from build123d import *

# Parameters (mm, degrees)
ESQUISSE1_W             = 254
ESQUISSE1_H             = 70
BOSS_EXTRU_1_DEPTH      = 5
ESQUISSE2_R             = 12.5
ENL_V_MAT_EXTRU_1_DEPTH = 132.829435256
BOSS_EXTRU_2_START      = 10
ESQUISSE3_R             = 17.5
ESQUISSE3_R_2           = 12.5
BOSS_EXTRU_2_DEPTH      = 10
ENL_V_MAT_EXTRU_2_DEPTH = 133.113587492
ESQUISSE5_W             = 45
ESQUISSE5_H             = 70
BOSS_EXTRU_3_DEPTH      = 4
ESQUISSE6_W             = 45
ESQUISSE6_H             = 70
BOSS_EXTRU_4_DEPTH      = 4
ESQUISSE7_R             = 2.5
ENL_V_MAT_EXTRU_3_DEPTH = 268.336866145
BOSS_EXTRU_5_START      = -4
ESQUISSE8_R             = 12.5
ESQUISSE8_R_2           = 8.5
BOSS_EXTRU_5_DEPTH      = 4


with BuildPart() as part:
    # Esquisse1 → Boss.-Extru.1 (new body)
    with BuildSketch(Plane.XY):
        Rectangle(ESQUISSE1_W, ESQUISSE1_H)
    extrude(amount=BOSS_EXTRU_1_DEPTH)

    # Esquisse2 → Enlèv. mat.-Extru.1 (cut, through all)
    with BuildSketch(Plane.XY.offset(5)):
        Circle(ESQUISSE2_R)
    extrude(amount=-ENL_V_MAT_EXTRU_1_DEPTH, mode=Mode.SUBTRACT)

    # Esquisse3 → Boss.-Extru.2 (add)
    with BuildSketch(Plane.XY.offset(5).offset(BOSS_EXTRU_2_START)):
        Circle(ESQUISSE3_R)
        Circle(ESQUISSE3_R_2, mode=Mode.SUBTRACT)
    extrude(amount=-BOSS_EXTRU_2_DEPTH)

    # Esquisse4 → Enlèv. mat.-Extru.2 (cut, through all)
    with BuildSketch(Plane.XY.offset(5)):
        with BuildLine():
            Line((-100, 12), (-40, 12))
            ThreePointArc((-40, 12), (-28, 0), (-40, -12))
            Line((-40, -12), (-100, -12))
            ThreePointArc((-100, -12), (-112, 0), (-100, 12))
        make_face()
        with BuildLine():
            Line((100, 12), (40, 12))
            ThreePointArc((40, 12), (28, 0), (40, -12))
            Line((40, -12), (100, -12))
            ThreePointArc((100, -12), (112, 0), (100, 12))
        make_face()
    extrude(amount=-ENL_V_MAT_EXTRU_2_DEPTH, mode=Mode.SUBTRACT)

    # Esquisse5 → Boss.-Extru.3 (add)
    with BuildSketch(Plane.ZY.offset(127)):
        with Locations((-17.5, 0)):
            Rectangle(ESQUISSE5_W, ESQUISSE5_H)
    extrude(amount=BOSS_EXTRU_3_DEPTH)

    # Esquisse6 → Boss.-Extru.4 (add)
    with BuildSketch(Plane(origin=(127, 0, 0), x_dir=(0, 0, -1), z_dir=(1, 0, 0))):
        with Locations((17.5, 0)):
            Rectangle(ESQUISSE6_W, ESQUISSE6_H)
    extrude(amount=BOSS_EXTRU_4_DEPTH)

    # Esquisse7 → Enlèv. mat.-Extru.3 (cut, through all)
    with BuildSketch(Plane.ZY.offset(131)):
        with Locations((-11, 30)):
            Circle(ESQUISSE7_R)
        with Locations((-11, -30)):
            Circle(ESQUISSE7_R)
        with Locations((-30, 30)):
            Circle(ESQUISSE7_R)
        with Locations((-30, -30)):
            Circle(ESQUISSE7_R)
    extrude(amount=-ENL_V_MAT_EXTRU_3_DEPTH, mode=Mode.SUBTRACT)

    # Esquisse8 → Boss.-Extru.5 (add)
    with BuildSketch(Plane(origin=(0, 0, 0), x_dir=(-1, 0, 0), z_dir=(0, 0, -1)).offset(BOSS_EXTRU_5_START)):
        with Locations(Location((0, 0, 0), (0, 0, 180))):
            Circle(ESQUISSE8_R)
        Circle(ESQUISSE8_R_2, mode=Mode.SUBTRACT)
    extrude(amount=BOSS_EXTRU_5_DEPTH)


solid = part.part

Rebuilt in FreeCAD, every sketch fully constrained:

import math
import FreeCAD as App
import Part
import Sketcher

doc = App.newDocument("Part")
body = doc.addObject("PartDesign::Body", "Body")

# Sketch on XY plane
sketch1 = doc.addObject("Sketcher::SketchObject", "Sketch")
body.addObject(sketch1)
sketch1.AttachmentSupport = (doc.XY_Plane, [""])
sketch1.MapMode = "FlatFace"
sketch1.addGeometry(Part.LineSegment(App.Vector(-127, 35, 0), App.Vector(-127, -35, 0)), False)
sketch1.addGeometry(Part.LineSegment(App.Vector(-127, -35, 0), App.Vector(127, -35, 0)), False)
sketch1.addGeometry(Part.LineSegment(App.Vector(127, -35, 0), App.Vector(127, 35, 0)), False)
sketch1.addGeometry(Part.LineSegment(App.Vector(127, 35, 0), App.Vector(-127, 35, 0)), False)
sketch1.addConstraint(Sketcher.Constraint("Coincident", 0, 2, 1, 1))
sketch1.addConstraint(Sketcher.Constraint("Coincident", 1, 2, 2, 1))
sketch1.addConstraint(Sketcher.Constraint("Coincident", 2, 2, 3, 1))
sketch1.addConstraint(Sketcher.Constraint("Coincident", 3, 2, 0, 1))
sketch1.addConstraint(Sketcher.Constraint("Vertical", 0))
sketch1.addConstraint(Sketcher.Constraint("Horizontal", 1))
sketch1.addConstraint(Sketcher.Constraint("Vertical", 2))
sketch1.addConstraint(Sketcher.Constraint("Horizontal", 3))
sketch1.addConstraint(Sketcher.Constraint("Symmetric", 0, 2, 2, 2, -1, 1))
sketch1.addConstraint(Sketcher.Constraint("DistanceX", 1, 1, 1, 2, 254.0))
sketch1.addConstraint(Sketcher.Constraint("DistanceY", 0, 2, 0, 1, 70.0))
pad1 = doc.addObject("PartDesign::Pad", "Pad")
body.addObject(pad1)
pad1.Profile = sketch1
pad1.Length = 5

# Sketch on XY plane
sketch2 = doc.addObject("Sketcher::SketchObject", "Sketch001")
body.addObject(sketch2)
sketch2.AttachmentSupport = (doc.XY_Plane, [""])
sketch2.MapMode = "FlatFace"
sketch2.AttachmentOffset = App.Placement(App.Vector(0, 0, 5), App.Rotation())
sketch2.addGeometry(Part.Circle(App.Vector(0, 0, 0), App.Vector(0, 0, 1), 12.5), False)
sketch2.addConstraint(Sketcher.Constraint("Coincident", 0, 3, -1, 1))
sketch2.addConstraint(Sketcher.Constraint("Diameter", 0, 25.0))
pocket1 = doc.addObject("PartDesign::Pocket", "Pocket")
body.addObject(pocket1)
pocket1.Profile = sketch2
pocket1.Type = "ThroughAll"

# Sketch on XY plane
sketch3 = doc.addObject("Sketcher::SketchObject", "Sketch002")
body.addObject(sketch3)
sketch3.AttachmentSupport = (doc.XY_Plane, [""])
sketch3.MapMode = "FlatFace"
sketch3.AttachmentOffset = App.Placement(App.Vector(0, 0, 15), App.Rotation())
sketch3.addGeometry(Part.Circle(App.Vector(0, 0, 0), App.Vector(0, 0, 1), 17.5), False)
sketch3.addGeometry(Part.Circle(App.Vector(0, 0, 0), App.Vector(0, 0, 1), 12.5), False)
sketch3.addConstraint(Sketcher.Constraint("Coincident", 0, 3, -1, 1))
sketch3.addConstraint(Sketcher.Constraint("Coincident", 1, 3, -1, 1))
sketch3.addConstraint(Sketcher.Constraint("Diameter", 0, 35.0))
sketch3.addConstraint(Sketcher.Constraint("Diameter", 1, 25.0))
pad2 = doc.addObject("PartDesign::Pad", "Pad001")
body.addObject(pad2)
pad2.Profile = sketch3
pad2.Length = 10
pad2.Reversed = True

# Sketch on XY plane
sketch4 = doc.addObject("Sketcher::SketchObject", "Sketch003")
body.addObject(sketch4)
sketch4.AttachmentSupport = (doc.XY_Plane, [""])
sketch4.MapMode = "FlatFace"
sketch4.AttachmentOffset = App.Placement(App.Vector(0, 0, 5), App.Rotation())
sketch4.addGeometry(Part.LineSegment(App.Vector(-40, 12, 0), App.Vector(-100, 12, 0)), False)
sketch4.addGeometry(Part.ArcOfCircle(Part.Circle(App.Vector(-100, 0, 0), App.Vector(0, 0, 1), 12), math.radians(90), math.radians(270)), False)
sketch4.addGeometry(Part.LineSegment(App.Vector(-100, -12, 0), App.Vector(-40, -12, 0)), False)
sketch4.addGeometry(Part.ArcOfCircle(Part.Circle(App.Vector(-40, 0, 0), App.Vector(0, 0, 1), 12), math.radians(-90), math.radians(90)), False)
sketch4.addGeometry(Part.LineSegment(App.Vector(100, 12, 0), App.Vector(40, 12, 0)), False)
sketch4.addGeometry(Part.ArcOfCircle(Part.Circle(App.Vector(40, 0, 0), App.Vector(0, 0, 1), 12), math.radians(90), math.radians(270)), False)
sketch4.addGeometry(Part.LineSegment(App.Vector(40, -12, 0), App.Vector(100, -12, 0)), False)
sketch4.addGeometry(Part.ArcOfCircle(Part.Circle(App.Vector(100, 0, 0), App.Vector(0, 0, 1), 12), math.radians(-90), math.radians(90)), False)
sketch4.addConstraint(Sketcher.Constraint("Tangent", 0, 2, 1, 1))
sketch4.addConstraint(Sketcher.Constraint("Tangent", 1, 2, 2, 1))
sketch4.addConstraint(Sketcher.Constraint("Tangent", 2, 2, 3, 1))
sketch4.addConstraint(Sketcher.Constraint("Tangent", 3, 2, 0, 1))
sketch4.addConstraint(Sketcher.Constraint("Tangent", 4, 2, 5, 1))
sketch4.addConstraint(Sketcher.Constraint("Tangent", 5, 2, 6, 1))
sketch4.addConstraint(Sketcher.Constraint("Tangent", 6, 2, 7, 1))
sketch4.addConstraint(Sketcher.Constraint("Tangent", 7, 2, 4, 1))
sketch4.addConstraint(Sketcher.Constraint("Horizontal", 0))
sketch4.addConstraint(Sketcher.Constraint("Horizontal", 2))
sketch4.addConstraint(Sketcher.Constraint("Horizontal", 4))
sketch4.addConstraint(Sketcher.Constraint("Horizontal", 6))
sketch4.addConstraint(Sketcher.Constraint("Equal", 3, 5))
sketch4.addConstraint(Sketcher.Constraint("Symmetric", 3, 3, 5, 3, -1, 1))
sketch4.addConstraint(Sketcher.Constraint("Symmetric", 1, 3, 7, 3, -2))
sketch4.addConstraint(Sketcher.Constraint("Radius", 1, 12.0))
sketch4.addConstraint(Sketcher.Constraint("DistanceX", 0, 2, 0, 1, 60.0))
sketch4.addConstraint(Sketcher.Constraint("DistanceX", 1, 3, -1, 1, 100.0))
pocket2 = doc.addObject("PartDesign::Pocket", "Pocket001")
body.addObject(pocket2)
pocket2.Profile = sketch4
pocket2.Type = "ThroughAll"

# Sketch on YZ plane
sketch5 = doc.addObject("Sketcher::SketchObject", "Sketch004")
body.addObject(sketch5)
sketch5.AttachmentSupport = (doc.YZ_Plane, [""])
sketch5.MapMode = "FlatFace"
sketch5.AttachmentOffset = App.Placement(App.Vector(0, 0, -127), App.Rotation())
sketch5.addGeometry(Part.LineSegment(App.Vector(35, -40, 0), App.Vector(-35, -40, 0)), False)
sketch5.addGeometry(Part.LineSegment(App.Vector(-35, -40, 0), App.Vector(-35, 5, 0)), False)
sketch5.addGeometry(Part.LineSegment(App.Vector(-35, 5, 0), App.Vector(35, 5, 0)), False)
sketch5.addGeometry(Part.LineSegment(App.Vector(35, 5, 0), App.Vector(35, -40, 0)), False)
sketch5.addConstraint(Sketcher.Constraint("Coincident", 0, 2, 1, 1))
sketch5.addConstraint(Sketcher.Constraint("Coincident", 1, 2, 2, 1))
sketch5.addConstraint(Sketcher.Constraint("Coincident", 2, 2, 3, 1))
sketch5.addConstraint(Sketcher.Constraint("Coincident", 3, 2, 0, 1))
sketch5.addConstraint(Sketcher.Constraint("Horizontal", 0))
sketch5.addConstraint(Sketcher.Constraint("Vertical", 1))
sketch5.addConstraint(Sketcher.Constraint("Horizontal", 2))
sketch5.addConstraint(Sketcher.Constraint("Vertical", 3))
sketch5.addConstraint(Sketcher.Constraint("DistanceX", 0, 2, 0, 1, 70.0))
sketch5.addConstraint(Sketcher.Constraint("DistanceY", 1, 1, 1, 2, 45.0))
sketch5.addConstraint(Sketcher.Constraint("DistanceX", 0, 2, -1, 1, 35.0))
sketch5.addConstraint(Sketcher.Constraint("DistanceY", 0, 2, -1, 1, 40.0))
pad3 = doc.addObject("PartDesign::Pad", "Pad002")
body.addObject(pad3)
pad3.Profile = sketch5
pad3.Length = 4
pad3.Reversed = True

# Sketch on YZ plane
sketch6 = doc.addObject("Sketcher::SketchObject", "Sketch005")
body.addObject(sketch6)
sketch6.AttachmentSupport = (doc.YZ_Plane, [""])
sketch6.MapMode = "FlatFace"
sketch6.AttachmentOffset = App.Placement(App.Vector(0, 0, 127), App.Rotation())
sketch6.addGeometry(Part.LineSegment(App.Vector(35, 5, 0), App.Vector(-35, 5, 0)), False)
sketch6.addGeometry(Part.LineSegment(App.Vector(-35, 5, 0), App.Vector(-35, -40, 0)), False)
sketch6.addGeometry(Part.LineSegment(App.Vector(-35, -40, 0), App.Vector(35, -40, 0)), False)
sketch6.addGeometry(Part.LineSegment(App.Vector(35, -40, 0), App.Vector(35, 5, 0)), False)
sketch6.addConstraint(Sketcher.Constraint("Coincident", 0, 2, 1, 1))
sketch6.addConstraint(Sketcher.Constraint("Coincident", 1, 2, 2, 1))
sketch6.addConstraint(Sketcher.Constraint("Coincident", 2, 2, 3, 1))
sketch6.addConstraint(Sketcher.Constraint("Coincident", 3, 2, 0, 1))
sketch6.addConstraint(Sketcher.Constraint("Horizontal", 0))
sketch6.addConstraint(Sketcher.Constraint("Vertical", 1))
sketch6.addConstraint(Sketcher.Constraint("Horizontal", 2))
sketch6.addConstraint(Sketcher.Constraint("Vertical", 3))
sketch6.addConstraint(Sketcher.Constraint("DistanceX", 0, 2, 0, 1, 70.0))
sketch6.addConstraint(Sketcher.Constraint("DistanceY", 1, 2, 1, 1, 45.0))
sketch6.addConstraint(Sketcher.Constraint("DistanceX", 0, 2, -1, 1, 35.0))
sketch6.addConstraint(Sketcher.Constraint("DistanceY", -1, 1, 0, 2, 5.0))
pad4 = doc.addObject("PartDesign::Pad", "Pad003")
body.addObject(pad4)
pad4.Profile = sketch6
pad4.Length = 4

# Sketch on YZ plane
sketch7 = doc.addObject("Sketcher::SketchObject", "Sketch006")
body.addObject(sketch7)
sketch7.AttachmentSupport = (doc.YZ_Plane, [""])
sketch7.MapMode = "FlatFace"
sketch7.AttachmentOffset = App.Placement(App.Vector(0, 0, -131), App.Rotation())
sketch7.addGeometry(Part.Circle(App.Vector(30, -11, 0), App.Vector(0, 0, 1), 2.5), False)
sketch7.addGeometry(Part.Circle(App.Vector(-30, -11, 0), App.Vector(0, 0, 1), 2.5), False)
sketch7.addGeometry(Part.Circle(App.Vector(30, -30, 0), App.Vector(0, 0, 1), 2.5), False)
sketch7.addGeometry(Part.Circle(App.Vector(-30, -30, 0), App.Vector(0, 0, 1), 2.5), False)
sketch7.addConstraint(Sketcher.Constraint("Equal", 0, 1))
sketch7.addConstraint(Sketcher.Constraint("Equal", 1, 2))
sketch7.addConstraint(Sketcher.Constraint("Equal", 2, 3))
sketch7.addConstraint(Sketcher.Constraint("Symmetric", 0, 3, 1, 3, -2))
sketch7.addConstraint(Sketcher.Constraint("Symmetric", 2, 3, 3, 3, -2))
sketch7.addConstraint(Sketcher.Constraint("Vertical", 0, 3, 2, 3))
sketch7.addConstraint(Sketcher.Constraint("Diameter", 0, 5.0))
sketch7.addConstraint(Sketcher.Constraint("DistanceX", -1, 1, 0, 3, 30.0))
sketch7.addConstraint(Sketcher.Constraint("DistanceY", 0, 3, -1, 1, 11.0))
sketch7.addConstraint(Sketcher.Constraint("DistanceY", 2, 3, -1, 1, 30.0))
pocket3 = doc.addObject("PartDesign::Pocket", "Pocket002")
body.addObject(pocket3)
pocket3.Profile = sketch7
pocket3.Type = "ThroughAll"
pocket3.Reversed = True

# Sketch on XY plane
sketch8 = doc.addObject("Sketcher::SketchObject", "Sketch007")
body.addObject(sketch8)
sketch8.AttachmentSupport = (doc.XY_Plane, [""])
sketch8.MapMode = "FlatFace"
sketch8.AttachmentOffset = App.Placement(App.Vector(0, 0, 4), App.Rotation())
sketch8.addGeometry(Part.Circle(App.Vector(0, 0, 0), App.Vector(0, 0, 1), 12.5), False)
sketch8.addGeometry(Part.Circle(App.Vector(0, 0, 0), App.Vector(0, 0, 1), 8.5), False)
sketch8.addConstraint(Sketcher.Constraint("Coincident", 0, 3, -1, 1))
sketch8.addConstraint(Sketcher.Constraint("Coincident", 1, 3, -1, 1))
sketch8.addConstraint(Sketcher.Constraint("Diameter", 0, 25.0))
sketch8.addConstraint(Sketcher.Constraint("Diameter", 1, 17.0))
pad5 = doc.addObject("PartDesign::Pad", "Pad004")
body.addObject(pad5)
pad5.Profile = sketch8
pad5.Length = 4
pad5.Reversed = True

doc.recompute()
